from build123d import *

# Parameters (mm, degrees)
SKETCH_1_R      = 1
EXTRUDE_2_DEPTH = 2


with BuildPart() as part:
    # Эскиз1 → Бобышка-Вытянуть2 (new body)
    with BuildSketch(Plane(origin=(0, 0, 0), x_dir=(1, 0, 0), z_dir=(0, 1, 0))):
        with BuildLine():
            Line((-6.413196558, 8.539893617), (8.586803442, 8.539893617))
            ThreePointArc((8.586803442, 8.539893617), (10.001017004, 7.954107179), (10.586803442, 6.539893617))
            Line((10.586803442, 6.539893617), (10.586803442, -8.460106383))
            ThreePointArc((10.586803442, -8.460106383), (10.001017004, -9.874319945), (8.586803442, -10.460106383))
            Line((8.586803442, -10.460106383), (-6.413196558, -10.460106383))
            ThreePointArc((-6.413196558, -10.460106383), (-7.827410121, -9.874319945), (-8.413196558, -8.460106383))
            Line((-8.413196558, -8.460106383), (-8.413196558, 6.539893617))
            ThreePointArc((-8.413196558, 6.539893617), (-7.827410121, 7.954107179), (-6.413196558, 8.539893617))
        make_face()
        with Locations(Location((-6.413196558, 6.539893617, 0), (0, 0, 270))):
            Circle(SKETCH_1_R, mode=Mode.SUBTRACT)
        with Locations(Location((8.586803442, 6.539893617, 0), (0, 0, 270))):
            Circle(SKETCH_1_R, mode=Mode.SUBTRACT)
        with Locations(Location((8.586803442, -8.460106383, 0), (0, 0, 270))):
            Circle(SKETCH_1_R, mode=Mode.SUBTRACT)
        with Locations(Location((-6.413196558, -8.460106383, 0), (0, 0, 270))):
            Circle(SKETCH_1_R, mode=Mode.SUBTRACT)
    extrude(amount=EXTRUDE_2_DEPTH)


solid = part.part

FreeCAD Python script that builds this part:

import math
import FreeCAD as App
import Part
import Sketcher
from FreeCAD import Vector
Q = App.Units.Quantity

doc = App.newDocument("Part")
body = doc.addObject("PartDesign::Body", "Body")

sketch1 = body.newObject("Sketcher::SketchObject", "Sketch")
sketch1.AttachmentSupport = (doc.getObject("XZ_Plane"), [""])
sketch1.MapMode = "FlatFace"
sketch1.addGeometry([
    Part.LineSegment(Vector(8.6, -8.5, 0), Vector(-6.4, -8.5, 0)),
    Part.ArcOfCircle(Part.Circle(Vector(-6.4, -6.5, 0), Vector(0, 0, 1), 2), math.radians(180), math.radians(270)),
    Part.LineSegment(Vector(-8.4, -6.5, 0), Vector(-8.4, 8.5, 0)),
    Part.ArcOfCircle(Part.Circle(Vector(-6.4, 8.5, 0), Vector(0, 0, 1), 2), math.radians(90), math.radians(180)),
    Part.LineSegment(Vector(-6.4, 10.5, 0), Vector(8.6, 10.5, 0)),
    Part.ArcOfCircle(Part.Circle(Vector(8.6, 8.5, 0), Vector(0, 0, 1), 2), math.radians(0), math.radians(90)),
    Part.LineSegment(Vector(10.6, 8.5, 0), Vector(10.6, -6.5, 0)),
    Part.ArcOfCircle(Part.Circle(Vector(8.6, -6.5, 0), Vector(0, 0, 1), 2), math.radians(-90), math.radians(0)),
    Part.Circle(Vector(8.6, 8.5, 0), Vector(0, 0, 1), 1),
    Part.Circle(Vector(-6.4, 8.5, 0), Vector(0, 0, 1), 1),
    Part.Circle(Vector(8.6, -6.5, 0), Vector(0, 0, 1), 1),
    Part.Circle(Vector(-6.4, -6.5, 0), Vector(0, 0, 1), 1),
], False)
sketch1.addConstraint([
    Sketcher.Constraint("Tangent", 0, 2, 1, 2),
    Sketcher.Constraint("Tangent", 1, 1, 2, 1),
    Sketcher.Constraint("Tangent", 2, 2, 3, 2),
    Sketcher.Constraint("Tangent", 3, 1, 4, 1),
    Sketcher.Constraint("Tangent", 4, 2, 5, 2),
    Sketcher.Constraint("Tangent", 5, 1, 6, 1),
    Sketcher.Constraint("Tangent", 6, 2, 7, 2),
    Sketcher.Constraint("Tangent", 7, 1, 0, 1),
    Sketcher.Constraint("Horizontal", 0),
    Sketcher.Constraint("Vertical", 2),
    Sketcher.Constraint("Horizontal", 4),
    Sketcher.Constraint("Vertical", 6),
    Sketcher.Constraint("Coincident", 8, 3, 5, 3),
    Sketcher.Constraint("Coincident", 9, 3, 3, 3),
    Sketcher.Constraint("Coincident", 10, 3, 7, 3),
    Sketcher.Constraint("Coincident", 11, 3, 1, 3),
    Sketcher.Constraint("Equal", 1, 3),
    Sketcher.Constraint("Equal", 3, 5),
    Sketcher.Constraint("Equal", 5, 7),
    Sketcher.Constraint("Equal", 8, 9),
    Sketcher.Constraint("Equal", 9, 10),
    Sketcher.Constraint("Equal", 10, 11),
    Sketcher.Constraint("Equal", 4, 2),
    Sketcher.Constraint("Diameter", 8, Q("2 mm")),
    Sketcher.Constraint("Radius", 1, Q("2 mm")),
    Sketcher.Constraint("DistanceX", 0, 2, 0, 1, Q("15 mm")),
    Sketcher.Constraint("DistanceX", 1, 3, -1, 1, Q("6.413197 mm")),
    Sketcher.Constraint("DistanceY", 1, 3, -1, 1, Q("6.539894 mm")),
])
pad1 = body.newObject("PartDesign::Pad", "Pad")
pad1.Profile = sketch1
pad1.Length = 2
pad1.Reversed = True

doc.recompute()
